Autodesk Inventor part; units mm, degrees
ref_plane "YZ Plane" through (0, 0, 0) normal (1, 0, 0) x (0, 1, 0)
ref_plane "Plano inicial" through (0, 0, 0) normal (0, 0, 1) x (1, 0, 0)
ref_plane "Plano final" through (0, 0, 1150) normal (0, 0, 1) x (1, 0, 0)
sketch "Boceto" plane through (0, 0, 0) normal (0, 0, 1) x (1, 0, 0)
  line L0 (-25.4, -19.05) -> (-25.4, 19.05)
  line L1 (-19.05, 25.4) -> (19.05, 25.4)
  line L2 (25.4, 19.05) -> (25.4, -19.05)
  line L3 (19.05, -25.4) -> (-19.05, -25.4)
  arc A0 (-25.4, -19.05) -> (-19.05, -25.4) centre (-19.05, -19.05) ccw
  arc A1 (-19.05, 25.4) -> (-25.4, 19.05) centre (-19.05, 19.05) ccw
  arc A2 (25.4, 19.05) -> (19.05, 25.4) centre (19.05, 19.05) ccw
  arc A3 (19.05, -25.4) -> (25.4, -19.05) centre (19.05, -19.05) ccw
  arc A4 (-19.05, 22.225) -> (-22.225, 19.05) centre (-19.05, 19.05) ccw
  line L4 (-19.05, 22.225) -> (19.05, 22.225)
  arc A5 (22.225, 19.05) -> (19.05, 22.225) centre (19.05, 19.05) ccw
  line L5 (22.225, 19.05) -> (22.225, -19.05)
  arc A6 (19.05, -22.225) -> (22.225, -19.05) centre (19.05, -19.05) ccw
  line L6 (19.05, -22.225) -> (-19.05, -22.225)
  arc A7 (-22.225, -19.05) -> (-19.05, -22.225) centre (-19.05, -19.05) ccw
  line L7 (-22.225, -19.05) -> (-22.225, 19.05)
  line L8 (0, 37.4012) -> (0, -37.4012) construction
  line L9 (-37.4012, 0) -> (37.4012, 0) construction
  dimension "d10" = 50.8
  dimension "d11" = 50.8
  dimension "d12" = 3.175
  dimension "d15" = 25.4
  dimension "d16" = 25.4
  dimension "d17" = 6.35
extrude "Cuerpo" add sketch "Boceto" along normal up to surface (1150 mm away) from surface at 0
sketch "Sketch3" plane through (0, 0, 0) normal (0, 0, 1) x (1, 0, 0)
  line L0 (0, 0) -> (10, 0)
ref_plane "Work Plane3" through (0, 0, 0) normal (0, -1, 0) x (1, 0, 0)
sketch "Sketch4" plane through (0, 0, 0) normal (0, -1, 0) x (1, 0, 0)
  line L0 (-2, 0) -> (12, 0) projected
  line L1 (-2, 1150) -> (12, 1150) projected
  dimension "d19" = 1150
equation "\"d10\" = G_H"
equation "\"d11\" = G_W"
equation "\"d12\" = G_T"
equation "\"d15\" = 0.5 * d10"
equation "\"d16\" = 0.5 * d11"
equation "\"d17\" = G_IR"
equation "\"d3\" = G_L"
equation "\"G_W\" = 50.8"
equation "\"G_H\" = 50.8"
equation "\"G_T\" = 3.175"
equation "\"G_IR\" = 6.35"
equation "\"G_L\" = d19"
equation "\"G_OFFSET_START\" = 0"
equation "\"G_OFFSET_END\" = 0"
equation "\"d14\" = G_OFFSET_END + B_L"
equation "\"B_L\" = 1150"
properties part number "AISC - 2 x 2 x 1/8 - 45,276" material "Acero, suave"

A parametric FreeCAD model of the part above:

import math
import FreeCAD as App
import Part
import Sketcher
from FreeCAD import Vector
Q = App.Units.Quantity

doc = App.newDocument("Part")
body = doc.addObject("PartDesign::Body", "Body")

# Sketch on XY plane
sketch1 = body.newObject("Sketcher::SketchObject", "Sketch")
sketch1.AttachmentSupport = (doc.getObject("XY_Plane"), [""])
sketch1.MapMode = "FlatFace"
sketch1.addGeometry(Part.LineSegment(Vector(-25.4, 19.05, 0), Vector(-25.4, -19.05, 0)), False)
sketch1.addGeometry(Part.ArcOfCircle(Part.Circle(Vector(-19.05, -19.05, 0), Vector(0, 0, 1), 6.35), math.radians(180), math.radians(270)), False)
sketch1.addGeometry(Part.LineSegment(Vector(-19.05, -25.4, 0), Vector(19.05, -25.4, 0)), False)
sketch1.addGeometry(Part.ArcOfCircle(Part.Circle(Vector(19.05, -19.05, 0), Vector(0, 0, 1), 6.35), math.radians(-90), math.radians(0)), False)
sketch1.addGeometry(Part.LineSegment(Vector(25.4, -19.05, 0), Vector(25.4, 19.05, 0)), False)
sketch1.addGeometry(Part.ArcOfCircle(Part.Circle(Vector(19.05, 19.05, 0), Vector(0, 0, 1), 6.35), math.radians(0), math.radians(90)), False)
sketch1.addGeometry(Part.LineSegment(Vector(19.05, 25.4, 0), Vector(-19.05, 25.4, 0)), False)
sketch1.addGeometry(Part.ArcOfCircle(Part.Circle(Vector(-19.05, 19.05, 0), Vector(0, 0, 1), 6.35), math.radians(90), math.radians(180)), False)
sketch1.addGeometry(Part.ArcOfCircle(Part.Circle(Vector(-19.05, 19.05, 0), Vector(0, 0, 1), 3.175), math.radians(90), math.radians(180)), False)
sketch1.addGeometry(Part.LineSegment(Vector(-19.05, 22.225, 0), Vector(19.05, 22.225, 0)), False)
sketch1.addGeometry(Part.ArcOfCircle(Part.Circle(Vector(19.05, 19.05, 0), Vector(0, 0, 1), 3.175), math.radians(0), math.radians(90)), False)
sketch1.addGeometry(Part.LineSegment(Vector(22.225, 19.05, 0), Vector(22.225, -19.05, 0)), False)
sketch1.addGeometry(Part.ArcOfCircle(Part.Circle(Vector(19.05, -19.05, 0), Vector(0, 0, 1), 3.175), math.radians(-90), math.radians(0)), False)
sketch1.addGeometry(Part.LineSegment(Vector(19.05, -22.225, 0), Vector(-19.05, -22.225, 0)), False)
sketch1.addGeometry(Part.ArcOfCircle(Part.Circle(Vector(-19.05, -19.05, 0), Vector(0, 0, 1), 3.175), math.radians(180), math.radians(270)), False)
sketch1.addGeometry(Part.LineSegment(Vector(-22.225, -19.05, 0), Vector(-22.225, 19.05, 0)), False)
sketch1.addConstraint(Sketcher.Constraint("Tangent", 0, 2, 1, 1))
sketch1.addConstraint(Sketcher.Constraint("Tangent", 1, 2, 2, 1))
sketch1.addConstraint(Sketcher.Constraint("Tangent", 2, 2, 3, 1))
sketch1.addConstraint(Sketcher.Constraint("Tangent", 3, 2, 4, 1))
sketch1.addConstraint(Sketcher.Constraint("Tangent", 4, 2, 5, 1))
sketch1.addConstraint(Sketcher.Constraint("Tangent", 5, 2, 6, 1))
sketch1.addConstraint(Sketcher.Constraint("Tangent", 6, 2, 7, 1))
sketch1.addConstraint(Sketcher.Constraint("Tangent", 7, 2, 0, 1))
sketch1.addConstraint(Sketcher.Constraint("Tangent", 8, 1, 9, 1))
sketch1.addConstraint(Sketcher.Constraint("Tangent", 9, 2, 10, 2))
sketch1.addConstraint(Sketcher.Constraint("Tangent", 10, 1, 11, 1))
sketch1.addConstraint(Sketcher.Constraint("Tangent", 11, 2, 12, 2))
sketch1.addConstraint(Sketcher.Constraint("Tangent", 12, 1, 13, 1))
sketch1.addConstraint(Sketcher.Constraint("Tangent", 13, 2, 14, 2))
sketch1.addConstraint(Sketcher.Constraint("Tangent", 14, 1, 15, 1))
sketch1.addConstraint(Sketcher.Constraint("Tangent", 15, 2, 8, 2))
sketch1.addConstraint(Sketcher.Constraint("Vertical", 0))
sketch1.addConstraint(Sketcher.Constraint("Horizontal", 2))
sketch1.addConstraint(Sketcher.Constraint("Vertical", 4))
sketch1.addConstraint(Sketcher.Constraint("Horizontal", 6))
sketch1.addConstraint(Sketcher.Constraint("Horizontal", 9))
sketch1.addConstraint(Sketcher.Constraint("Vertical", 11))
sketch1.addConstraint(Sketcher.Constraint("Horizontal", 13))
sketch1.addConstraint(Sketcher.Constraint("Vertical", 15))
sketch1.addConstraint(Sketcher.Constraint("Coincident", 8, 3, 7, 3))
sketch1.addConstraint(Sketcher.Constraint("Coincident", 10, 3, 5, 3))
sketch1.addConstraint(Sketcher.Constraint("Coincident", 12, 3, 3, 3))
sketch1.addConstraint(Sketcher.Constraint("Equal", 1, 3))
sketch1.addConstraint(Sketcher.Constraint("Equal", 3, 5))
sketch1.addConstraint(Sketcher.Constraint("Equal", 5, 7))
sketch1.addConstraint(Sketcher.Constraint("Equal", 12, 14))
sketch1.addConstraint(Sketcher.Constraint("Symmetric", 1, 3, 5, 3, -1, 1))
sketch1.addConstraint(Sketcher.Constraint("Equal", 13, 0))
sketch1.addConstraint(Sketcher.Constraint("Radius", 1, Q("0.25 in")))
sketch1.addConstraint(Sketcher.Constraint("DistanceX", 0, 2, -1, 1, Q("1 in")))
sketch1.addConstraint(Sketcher.Constraint("Radius", 8, Q("0.125 in")))
pad1 = body.newObject("PartDesign::Pad", "Pad")
pad1.Profile = sketch1
pad1.Length = Q("45.2755906 in")

doc.recompute()
